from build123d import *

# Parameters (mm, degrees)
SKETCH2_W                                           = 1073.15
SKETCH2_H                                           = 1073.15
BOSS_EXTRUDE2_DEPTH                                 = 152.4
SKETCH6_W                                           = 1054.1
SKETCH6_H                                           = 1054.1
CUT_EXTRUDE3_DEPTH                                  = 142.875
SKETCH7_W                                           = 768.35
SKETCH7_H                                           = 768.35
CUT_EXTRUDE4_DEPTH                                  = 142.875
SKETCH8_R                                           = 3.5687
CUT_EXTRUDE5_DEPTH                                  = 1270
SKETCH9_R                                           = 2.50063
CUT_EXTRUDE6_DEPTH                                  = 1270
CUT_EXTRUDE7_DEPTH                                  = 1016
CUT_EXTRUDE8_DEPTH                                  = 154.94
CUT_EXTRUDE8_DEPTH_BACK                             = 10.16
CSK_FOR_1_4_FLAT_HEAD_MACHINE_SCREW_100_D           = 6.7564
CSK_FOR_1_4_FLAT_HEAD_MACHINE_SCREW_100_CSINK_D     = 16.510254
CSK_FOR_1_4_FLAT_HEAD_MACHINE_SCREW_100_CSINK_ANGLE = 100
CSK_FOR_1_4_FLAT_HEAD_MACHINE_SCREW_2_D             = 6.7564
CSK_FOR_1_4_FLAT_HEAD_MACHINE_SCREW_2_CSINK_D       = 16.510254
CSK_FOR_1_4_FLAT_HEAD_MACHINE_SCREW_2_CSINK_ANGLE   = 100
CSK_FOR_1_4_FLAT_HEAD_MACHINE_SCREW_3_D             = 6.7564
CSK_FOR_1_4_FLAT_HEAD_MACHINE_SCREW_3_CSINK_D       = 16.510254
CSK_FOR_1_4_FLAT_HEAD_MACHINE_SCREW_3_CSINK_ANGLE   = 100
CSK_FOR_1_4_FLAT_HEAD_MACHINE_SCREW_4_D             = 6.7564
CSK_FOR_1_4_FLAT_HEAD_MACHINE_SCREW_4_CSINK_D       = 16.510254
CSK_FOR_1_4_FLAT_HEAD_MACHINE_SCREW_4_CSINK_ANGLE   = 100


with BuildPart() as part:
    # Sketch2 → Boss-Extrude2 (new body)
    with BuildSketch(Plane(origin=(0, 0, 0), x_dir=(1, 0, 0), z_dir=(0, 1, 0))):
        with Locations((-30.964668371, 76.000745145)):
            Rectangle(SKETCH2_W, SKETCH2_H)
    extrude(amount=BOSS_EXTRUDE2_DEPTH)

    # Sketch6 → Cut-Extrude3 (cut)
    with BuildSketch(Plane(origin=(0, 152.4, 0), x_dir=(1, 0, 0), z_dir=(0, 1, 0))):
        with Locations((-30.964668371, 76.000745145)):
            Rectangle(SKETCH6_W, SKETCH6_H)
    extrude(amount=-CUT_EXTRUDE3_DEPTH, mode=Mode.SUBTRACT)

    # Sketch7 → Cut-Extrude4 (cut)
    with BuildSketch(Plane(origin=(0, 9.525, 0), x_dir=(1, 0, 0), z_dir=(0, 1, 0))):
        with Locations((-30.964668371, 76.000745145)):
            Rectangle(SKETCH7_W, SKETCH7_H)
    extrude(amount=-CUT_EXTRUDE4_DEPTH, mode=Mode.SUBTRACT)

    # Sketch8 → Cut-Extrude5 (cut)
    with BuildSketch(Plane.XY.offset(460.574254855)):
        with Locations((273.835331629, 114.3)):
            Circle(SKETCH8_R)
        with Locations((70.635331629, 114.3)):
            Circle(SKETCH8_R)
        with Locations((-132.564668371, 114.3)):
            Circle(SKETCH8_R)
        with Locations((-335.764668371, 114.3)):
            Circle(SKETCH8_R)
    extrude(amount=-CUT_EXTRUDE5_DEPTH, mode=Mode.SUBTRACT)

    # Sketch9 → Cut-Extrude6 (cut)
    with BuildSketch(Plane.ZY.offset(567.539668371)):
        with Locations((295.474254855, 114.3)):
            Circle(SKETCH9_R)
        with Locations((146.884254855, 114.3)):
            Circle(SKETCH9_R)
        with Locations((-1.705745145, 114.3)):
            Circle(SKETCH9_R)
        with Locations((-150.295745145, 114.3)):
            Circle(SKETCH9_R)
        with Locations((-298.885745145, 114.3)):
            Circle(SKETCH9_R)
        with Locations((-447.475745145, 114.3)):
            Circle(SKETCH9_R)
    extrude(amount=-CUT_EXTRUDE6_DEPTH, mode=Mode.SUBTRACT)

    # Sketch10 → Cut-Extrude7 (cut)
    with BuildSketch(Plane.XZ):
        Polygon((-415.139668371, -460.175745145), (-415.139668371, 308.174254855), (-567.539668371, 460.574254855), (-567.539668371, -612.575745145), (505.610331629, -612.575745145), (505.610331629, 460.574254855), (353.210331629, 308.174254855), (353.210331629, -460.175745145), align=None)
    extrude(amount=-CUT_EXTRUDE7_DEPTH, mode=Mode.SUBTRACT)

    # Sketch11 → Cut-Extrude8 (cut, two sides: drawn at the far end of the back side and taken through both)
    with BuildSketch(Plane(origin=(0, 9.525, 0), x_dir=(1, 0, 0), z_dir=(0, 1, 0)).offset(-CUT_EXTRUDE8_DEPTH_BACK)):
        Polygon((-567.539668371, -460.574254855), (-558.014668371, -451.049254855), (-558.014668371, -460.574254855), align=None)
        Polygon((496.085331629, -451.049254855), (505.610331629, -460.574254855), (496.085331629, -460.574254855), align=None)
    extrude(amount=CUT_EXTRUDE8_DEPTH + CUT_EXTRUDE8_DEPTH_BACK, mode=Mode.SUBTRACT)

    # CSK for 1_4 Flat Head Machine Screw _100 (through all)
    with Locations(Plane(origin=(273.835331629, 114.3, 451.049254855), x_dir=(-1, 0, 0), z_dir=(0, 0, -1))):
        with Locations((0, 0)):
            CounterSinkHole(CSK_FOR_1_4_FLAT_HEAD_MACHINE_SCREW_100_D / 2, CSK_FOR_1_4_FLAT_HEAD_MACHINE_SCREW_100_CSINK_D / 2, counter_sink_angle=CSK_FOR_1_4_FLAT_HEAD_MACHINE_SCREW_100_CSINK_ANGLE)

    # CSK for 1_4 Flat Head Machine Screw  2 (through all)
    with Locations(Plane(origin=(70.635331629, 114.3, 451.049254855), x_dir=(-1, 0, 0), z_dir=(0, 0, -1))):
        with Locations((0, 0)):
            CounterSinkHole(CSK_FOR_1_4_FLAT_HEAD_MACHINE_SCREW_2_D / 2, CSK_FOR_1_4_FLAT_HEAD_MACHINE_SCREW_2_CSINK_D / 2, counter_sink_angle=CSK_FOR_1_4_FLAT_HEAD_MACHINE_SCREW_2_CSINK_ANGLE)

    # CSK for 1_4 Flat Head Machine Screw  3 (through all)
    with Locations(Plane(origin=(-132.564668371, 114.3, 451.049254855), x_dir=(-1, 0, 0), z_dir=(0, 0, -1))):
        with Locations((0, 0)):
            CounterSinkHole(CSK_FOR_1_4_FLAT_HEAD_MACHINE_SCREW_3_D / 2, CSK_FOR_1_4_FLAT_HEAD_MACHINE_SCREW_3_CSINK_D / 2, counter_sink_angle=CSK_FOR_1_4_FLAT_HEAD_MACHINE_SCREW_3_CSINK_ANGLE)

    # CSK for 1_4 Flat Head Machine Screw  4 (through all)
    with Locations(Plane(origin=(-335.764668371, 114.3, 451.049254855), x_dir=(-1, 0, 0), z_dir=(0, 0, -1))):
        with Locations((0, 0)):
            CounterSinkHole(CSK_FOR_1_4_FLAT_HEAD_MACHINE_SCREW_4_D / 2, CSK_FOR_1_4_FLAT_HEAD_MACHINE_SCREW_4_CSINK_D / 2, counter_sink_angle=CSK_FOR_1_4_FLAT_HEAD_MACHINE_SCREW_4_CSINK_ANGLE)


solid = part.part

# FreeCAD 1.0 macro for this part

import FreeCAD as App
import Part
import Sketcher
Q = App.Units.Quantity

doc = App.newDocument("Part")
body = doc.addObject("PartDesign::Body", "Body")

# Sketch on XZ plane
sketch1 = doc.addObject("Sketcher::SketchObject", "Sketch")
body.addObject(sketch1)
sketch1.AttachmentSupport = (doc.XZ_Plane, [""])
sketch1.MapMode = "FlatFace"
sketch1.addGeometry(Part.LineSegment(App.Vector(-567.539668, -612.575745, 0), App.Vector(-567.539668, 460.574255, 0)), False)
sketch1.addGeometry(Part.LineSegment(App.Vector(-567.539668, 460.574255, 0), App.Vector(505.610332, 460.574255, 0)), False)
sketch1.addGeometry(Part.LineSegment(App.Vector(505.610332, 460.574255, 0), App.Vector(505.610332, -612.575745, 0)), False)
sketch1.addGeometry(Part.LineSegment(App.Vector(505.610332, -612.575745, 0), App.Vector(-567.539668, -612.575745, 0)), False)
sketch1.addConstraint(Sketcher.Constraint("Coincident", 0, 2, 1, 1))
sketch1.addConstraint(Sketcher.Constraint("Coincident", 1, 2, 2, 1))
sketch1.addConstraint(Sketcher.Constraint("Coincident", 2, 2, 3, 1))
sketch1.addConstraint(Sketcher.Constraint("Coincident", 3, 2, 0, 1))
sketch1.addConstraint(Sketcher.Constraint("Vertical", 0))
sketch1.addConstraint(Sketcher.Constraint("Horizontal", 1))
sketch1.addConstraint(Sketcher.Constraint("Vertical", 2))
sketch1.addConstraint(Sketcher.Constraint("Horizontal", 3))
sketch1.addConstraint(Sketcher.Constraint("Equal", 3, 0))
sketch1.addConstraint(Sketcher.Constraint("DistanceX", 1, 1, 1, 2, Q("42.25 in")))
sketch1.addConstraint(Sketcher.Constraint("DistanceX", 0, 2, -1, 1, Q("567.539668 mm")))
sketch1.addConstraint(Sketcher.Constraint("DistanceY", -1, 1, 0, 2, Q("460.574255 mm")))
pad1 = doc.addObject("PartDesign::Pad", "Pad")
body.addObject(pad1)
pad1.Profile = sketch1
pad1.Length = Q("6 in")
pad1.Reversed = True

# Sketch on XZ plane
sketch2 = doc.addObject("Sketcher::SketchObject", "Sketch001")
body.addObject(sketch2)
sketch2.AttachmentSupport = (doc.XZ_Plane, [""])
sketch2.MapMode = "FlatFace"
sketch2.AttachmentOffset = App.Placement(App.Vector(0, 0, -6 * 25.4), App.Rotation())
sketch2.addGeometry(Part.LineSegment(App.Vector(-558.014668, -603.050745, 0), App.Vector(-558.014668, 451.049255, 0)), False)
sketch2.addGeometry(Part.LineSegment(App.Vector(-558.014668, 451.049255, 0), App.Vector(496.085332, 451.049255, 0)), False)
sketch2.addGeometry(Part.LineSegment(App.Vector(496.085332, 451.049255, 0), App.Vector(496.085332, -603.050745, 0)), False)
sketch2.addGeometry(Part.LineSegment(App.Vector(496.085332, -603.050745, 0), App.Vector(-558.014668, -603.050745, 0)), False)
sketch2.addConstraint(Sketcher.Constraint("Coincident", 0, 2, 1, 1))
sketch2.addConstraint(Sketcher.Constraint("Coincident", 1, 2, 2, 1))
sketch2.addConstraint(Sketcher.Constraint("Coincident", 2, 2, 3, 1))
sketch2.addConstraint(Sketcher.Constraint("Coincident", 3, 2, 0, 1))
sketch2.addConstraint(Sketcher.Constraint("Vertical", 0))
sketch2.addConstraint(Sketcher.Constraint("Horizontal", 1))
sketch2.addConstraint(Sketcher.Constraint("Vertical", 2))
sketch2.addConstraint(Sketcher.Constraint("Horizontal", 3))
sketch2.addConstraint(Sketcher.Constraint("Equal", 3, 0))
sketch2.addConstraint(Sketcher.Constraint("DistanceX", 1, 1, 1, 2, Q("41.5 in")))
sketch2.addConstraint(Sketcher.Constraint("DistanceX", 0, 2, -1, 1, Q("558.014668 mm")))
sketch2.addConstraint(Sketcher.Constraint("DistanceY", -1, 1, 0, 2, Q("451.049255 mm")))
pocket1 = doc.addObject("PartDesign::Pocket", "Pocket")
body.addObject(pocket1)
pocket1.Profile = sketch2
pocket1.Length = Q("5.625 in")
pocket1.Reversed = True

# Sketch on XZ plane
sketch3 = doc.addObject("Sketcher::SketchObject", "Sketch002")
body.addObject(sketch3)
sketch3.AttachmentSupport = (doc.XZ_Plane, [""])
sketch3.MapMode = "FlatFace"
sketch3.AttachmentOffset = App.Placement(App.Vector(0, 0, -0.375 * 25.4), App.Rotation())
sketch3.addGeometry(Part.LineSegment(App.Vector(-415.139668, -460.175745, 0), App.Vector(-415.139668, 308.174255, 0)), False)
sketch3.addGeometry(Part.LineSegment(App.Vector(-415.139668, 308.174255, 0), App.Vector(353.210332, 308.174255, 0)), False)
sketch3.addGeometry(Part.LineSegment(App.Vector(353.210332, 308.174255, 0), App.Vector(353.210332, -460.175745, 0)), False)
sketch3.addGeometry(Part.LineSegment(App.Vector(353.210332, -460.175745, 0), App.Vector(-415.139668, -460.175745, 0)), False)
sketch3.addConstraint(Sketcher.Constraint("Coincident", 0, 2, 1, 1))
sketch3.addConstraint(Sketcher.Constraint("Coincident", 1, 2, 2, 1))
sketch3.addConstraint(Sketcher.Constraint("Coincident", 2, 2, 3, 1))
sketch3.addConstraint(Sketcher.Constraint("Coincident", 3, 2, 0, 1))
sketch3.addConstraint(Sketcher.Constraint("Vertical", 0))
sketch3.addConstraint(Sketcher.Constraint("Horizontal", 1))
sketch3.addConstraint(Sketcher.Constraint("Vertical", 2))
sketch3.addConstraint(Sketcher.Constraint("Horizontal", 3))
sketch3.addConstraint(Sketcher.Constraint("Equal", 3, 0))
sketch3.addConstraint(Sketcher.Constraint("DistanceX", 1, 1, 1, 2, Q("30.25 in")))
sketch3.addConstraint(Sketcher.Constraint("DistanceX", 0, 2, -1, 1, Q("415.139668 mm")))
sketch3.addConstraint(Sketcher.Constraint("DistanceY", -1, 1, 0, 2, Q("308.174255 mm")))
pocket2 = doc.addObject("PartDesign::Pocket", "Pocket001")
body.addObject(pocket2)
pocket2.Profile = sketch3
pocket2.Length = Q("5.625 in")
pocket2.Reversed = True

# Sketch on XY plane
sketch4 = doc.addObject("Sketcher::SketchObject", "Sketch003")
body.addObject(sketch4)
sketch4.AttachmentSupport = (doc.XY_Plane, [""])
sketch4.MapMode = "FlatFace"
sketch4.AttachmentOffset = App.Placement(App.Vector(0, 0, 460.574255), App.Rotation())
sketch4.addGeometry(Part.Circle(App.Vector(273.835332, 114.3, 0), App.Vector(0, 0, 1), 3.5687), False)
sketch4.addGeometry(Part.Circle(App.Vector(70.635332, 114.3, 0), App.Vector(0, 0, 1), 3.5687), False)
sketch4.addGeometry(Part.Circle(App.Vector(-132.564668, 114.3, 0), App.Vector(0, 0, 1), 3.5687), False)
sketch4.addGeometry(Part.Circle(App.Vector(-335.764668, 114.3, 0), App.Vector(0, 0, 1), 3.5687), False)
sketch4.addConstraint(Sketcher.Constraint("Equal", 0, 1))
sketch4.addConstraint(Sketcher.Constraint("Equal", 1, 2))
sketch4.addConstraint(Sketcher.Constraint("Equal", 2, 3))
sketch4.addConstraint(Sketcher.Constraint("Horizontal", 0, 3, 1, 3))
sketch4.addConstraint(Sketcher.Constraint("Horizontal", 1, 3, 2, 3))
sketch4.addConstraint(Sketcher.Constraint("Horizontal", 2, 3, 3, 3))
sketch4.addConstraint(Sketcher.Constraint("Diameter", 0, Q("0.281 in")))
sketch4.addConstraint(Sketcher.Constraint("DistanceX", 1, 3, 0, 3, Q("8 in")))
sketch4.addConstraint(Sketcher.Constraint("DistanceX", 2, 3, 1, 3, Q("8 in")))
sketch4.addConstraint(Sketcher.Constraint("DistanceX", 3, 3, 2, 3, Q("8 in")))
sketch4.addConstraint(Sketcher.Constraint("DistanceY", -1, 1, 0, 3, Q("4.5 in")))
sketch4.addConstraint(Sketcher.Constraint("DistanceX", -1, 1, 0, 3, Q("273.835332 mm")))
pocket3 = doc.addObject("PartDesign::Pocket", "Pocket002")
body.addObject(pocket3)
pocket3.Profile = sketch4
pocket3.Length = Q("50 in")

# Sketch on YZ plane
sketch5 = doc.addObject("Sketcher::SketchObject", "Sketch004")
body.addObject(sketch5)
sketch5.AttachmentSupport = (doc.YZ_Plane, [""])
sketch5.MapMode = "FlatFace"
sketch5.AttachmentOffset = App.Placement(App.Vector(0, 0, -567.539668), App.Rotation())
sketch5.addGeometry(Part.Circle(App.Vector(114.3, 295.474255, 0), App.Vector(0, 0, 1), 2.50063), False)
sketch5.addGeometry(Part.Circle(App.Vector(114.3, 146.884255, 0), App.Vector(0, 0, 1), 2.50063), False)
sketch5.addGeometry(Part.Circle(App.Vector(114.3, -1.705745, 0), App.Vector(0, 0, 1), 2.50063), False)
sketch5.addGeometry(Part.Circle(App.Vector(114.3, -150.295745, 0), App.Vector(0, 0, 1), 2.50063), False)
sketch5.addGeometry(Part.Circle(App.Vector(114.3, -298.885745, 0), App.Vector(0, 0, 1), 2.50063), False)
sketch5.addGeometry(Part.Circle(App.Vector(114.3, -447.475745, 0), App.Vector(0, 0, 1), 2.50063), False)
sketch5.addConstraint(Sketcher.Constraint("Equal", 0, 1))
sketch5.addConstraint(Sketcher.Constraint("Equal", 1, 2))
sketch5.addConstraint(Sketcher.Constraint("Equal", 2, 3))
sketch5.addConstraint(Sketcher.Constraint("Equal", 3, 4))
sketch5.addConstraint(Sketcher.Constraint("Equal", 4, 5))
sketch5.addConstraint(Sketcher.Constraint("Vertical", 0, 3, 1, 3))
sketch5.addConstraint(Sketcher.Constraint("Vertical", 1, 3, 2, 3))
sketch5.addConstraint(Sketcher.Constraint("Vertical", 2, 3, 3, 3))
sketch5.addConstraint(Sketcher.Constraint("Vertical", 3, 3, 4, 3))
sketch5.addConstraint(Sketcher.Constraint("Vertical", 4, 3, 5, 3))
sketch5.addConstraint(Sketcher.Constraint("Diameter", 0, Q("0.1969 in")))
sketch5.addConstraint(Sketcher.Constraint("DistanceX", -1, 1, 0, 3, Q("4.5 in")))
sketch5.addConstraint(Sketcher.Constraint("DistanceY", 2, 3, 0, 3, Q("11.7 in")))
sketch5.addConstraint(Sketcher.Constraint("DistanceY", 3, 3, 1, 3, Q("11.7 in")))
sketch5.addConstraint(Sketcher.Constraint("DistanceY", 4, 3, 2, 3, Q("11.7 in")))
sketch5.addConstraint(Sketcher.Constraint("DistanceY", 5, 3, 3, 3, Q("11.7 in")))
sketch5.addConstraint(Sketcher.Constraint("DistanceY", 1, 3, 0, 3, Q("5.85 in")))
sketch5.addConstraint(Sketcher.Constraint("DistanceY", -1, 1, 0, 3, Q("295.474255 mm")))
pocket4 = doc.addObject("PartDesign::Pocket", "Pocket003")
body.addObject(pocket4)
pocket4.Profile = sketch5
pocket4.Length = Q("50 in")
pocket4.Reversed = True

# Sketch on XZ plane
sketch6 = doc.addObject("Sketcher::SketchObject", "Sketch005")
body.addObject(sketch6)
sketch6.AttachmentSupport = (doc.XZ_Plane, [""])
sketch6.MapMode = "FlatFace"
sketch6.addGeometry(Part.LineSegment(App.Vector(-415.139668, -460.175745, 0), App.Vector(-415.139668, 308.174255, 0)), False)
sketch6.addGeometry(Part.LineSegment(App.Vector(-415.139668, 308.174255, 0), App.Vector(-567.539668, 460.574255, 0)), False)
sketch6.addGeometry(Part.LineSegment(App.Vector(-567.539668, 460.574255, 0), App.Vector(-567.539668, -612.575745, 0)), False)
sketch6.addGeometry(Part.LineSegment(App.Vector(-567.539668, -612.575745, 0), App.Vector(505.610332, -612.575745, 0)), False)
sketch6.addGeometry(Part.LineSegment(App.Vector(505.610332, -612.575745, 0), App.Vector(505.610332, 460.574255, 0)), False)
sketch6.addGeometry(Part.LineSegment(App.Vector(505.610332, 460.574255, 0), App.Vector(353.210332, 308.174255, 0)), False)
sketch6.addGeometry(Part.LineSegment(App.Vector(353.210332, 308.174255, 0), App.Vector(353.210332, -460.175745, 0)), False)
sketch6.addGeometry(Part.LineSegment(App.Vector(353.210332, -460.175745, 0), App.Vector(-415.139668, -460.175745, 0)), False)
sketch6.addConstraint(Sketcher.Constraint("Coincident", 0, 2, 1, 1))
sketch6.addConstraint(Sketcher.Constraint("Coincident", 1, 2, 2, 1))
sketch6.addConstraint(Sketcher.Constraint("Coincident", 2, 2, 3, 1))
sketch6.addConstraint(Sketcher.Constraint("Coincident", 3, 2, 4, 1))
sketch6.addConstraint(Sketcher.Constraint("Coincident", 4, 2, 5, 1))
sketch6.addConstraint(Sketcher.Constraint("Coincident", 5, 2, 6, 1))
sketch6.addConstraint(Sketcher.Constraint("Coincident", 6, 2, 7, 1))
sketch6.addConstraint(Sketcher.Constraint("Coincident", 7, 2, 0, 1))
sketch6.addConstraint(Sketcher.Constraint("Vertical", 0))
sketch6.addConstraint(Sketcher.Constraint("Vertical", 2))
sketch6.addConstraint(Sketcher.Constraint("Horizontal", 3))
sketch6.addConstraint(Sketcher.Constraint("Vertical", 4))
sketch6.addConstraint(Sketcher.Constraint("Vertical", 6))
sketch6.addConstraint(Sketcher.Constraint("Horizontal", 7))
sketch6.addConstraint(Sketcher.Constraint("Perpendicular", 1, 5))
sketch6.addConstraint(Sketcher.Constraint("Horizontal", 1, 2, 4, 2))
sketch6.addConstraint(Sketcher.Constraint("Horizontal", 0, 2, 5, 2))
sketch6.addConstraint(Sketcher.Constraint("Equal", 7, 0))
sketch6.addConstraint(Sketcher.Constraint("Equal", 3, 2))
sketch6.addConstraint(Sketcher.Constraint("Equal", 1, 5))
sketch6.addConstraint(Sketcher.Constraint("DistanceX", 1, 2, 0, 2, Q("6 in")))
sketch6.addConstraint(Sketcher.Constraint("DistanceX", 3, 1, 3, 2, Q("42.25 in")))
sketch6.addConstraint(Sketcher.Constraint("DistanceX", 0, 2, -1, 1, Q("415.139668 mm")))
sketch6.addConstraint(Sketcher.Constraint("DistanceY", -1, 1, 0, 2, Q("308.174255 mm")))
pocket5 = doc.addObject("PartDesign::Pocket", "Pocket004")
body.addObject(pocket5)
pocket5.Profile = sketch6
pocket5.Length = Q("40 in")

# Sketch on XZ plane
sketch7 = doc.addObject("Sketcher::SketchObject", "Sketch006")
body.addObject(sketch7)
sketch7.AttachmentSupport = (doc.XZ_Plane, [""])
sketch7.MapMode = "FlatFace"
sketch7.AttachmentOffset = App.Placement(App.Vector(0, 0, -0.375 * 25.4), App.Rotation())
sketch7.addGeometry(Part.LineSegment(App.Vector(-558.014668, 451.049255, 0), App.Vector(-567.539668, 460.574255, 0)), False)
sketch7.addGeometry(Part.LineSegment(App.Vector(-567.539668, 460.574255, 0), App.Vector(-558.014668, 460.574255, 0)), False)
sketch7.addGeometry(Part.LineSegment(App.Vector(-558.014668, 460.574255, 0), App.Vector(-558.014668, 451.049255, 0)), False)
sketch7.addGeometry(Part.LineSegment(App.Vector(505.610332, 460.574255, 0), App.Vector(496.085332, 451.049255, 0)), False)
sketch7.addGeometry(Part.LineSegment(App.Vector(496.085332, 451.049255, 0), App.Vector(496.085332, 460.574255, 0)), False)
sketch7.addGeometry(Part.LineSegment(App.Vector(496.085332, 460.574255, 0), App.Vector(505.610332, 460.574255, 0)), False)
sketch7.addConstraint(Sketcher.Constraint("Coincident", 0, 2, 1, 1))
sketch7.addConstraint(Sketcher.Constraint("Coincident", 1, 2, 2, 1))
sketch7.addConstraint(Sketcher.Constraint("Coincident", 2, 2, 0, 1))
sketch7.addConstraint(Sketcher.Constraint("Coincident", 3, 2, 4, 1))
sketch7.addConstraint(Sketcher.Constraint("Coincident", 4, 2, 5, 1))
sketch7.addConstraint(Sketcher.Constraint("Coincident", 5, 2, 3, 1))
sketch7.addConstraint(Sketcher.Constraint("Horizontal", 1))
sketch7.addConstraint(Sketcher.Constraint("Vertical", 2))
sketch7.addConstraint(Sketcher.Constraint("Vertical", 4))
sketch7.addConstraint(Sketcher.Constraint("Horizontal", 5))
sketch7.addConstraint(Sketcher.Constraint("Perpendicular", 0, 3))
sketch7.addConstraint(Sketcher.Constraint("Horizontal", 2, 2, 3, 2))
sketch7.addConstraint(Sketcher.Constraint("Horizontal", 1, 2, 4, 2))
sketch7.addConstraint(Sketcher.Constraint("Equal", 1, 5))
sketch7.addConstraint(Sketcher.Constraint("DistanceX", 2, 2, 3, 2, Q("41.5 in")))
sketch7.addConstraint(Sketcher.Constraint("DistanceX", 1, 1, 1, 2, Q("0.375 in")))
sketch7.addConstraint(Sketcher.Constraint("DistanceX", 0, 2, -1, 1, Q("567.539668 mm")))
sketch7.addConstraint(Sketcher.Constraint("DistanceY", -1, 1, 0, 2, Q("460.574255 mm")))
pocket6 = doc.addObject("PartDesign::Pocket", "Pocket005")
body.addObject(pocket6)
pocket6.Profile = sketch7
pocket6.Type = "ThroughAll"
pocket6.Midplane = True

# Sketch on XY plane
sketch8 = doc.addObject("Sketcher::SketchObject", "Sketch007")
body.addObject(sketch8)
sketch8.AttachmentSupport = (doc.XY_Plane, [""])
sketch8.MapMode = "FlatFace"
sketch8.AttachmentOffset = App.Placement(App.Vector(0, 0, 451.049255), App.Rotation())
sketch8.addGeometry(Part.Circle(App.Vector(273.835332, 114.3, 0), App.Vector(0, 0, 1), 3.3782), False)
sketch8.addConstraint(Sketcher.Constraint("Diameter", 0, Q("0.266 in")))
sketch8.addConstraint(Sketcher.Constraint("DistanceY", -1, 1, 0, 3, Q("4.5 in")))
sketch8.addConstraint(Sketcher.Constraint("DistanceX", -1, 1, 0, 3, Q("273.835332 mm")))
doc.recompute()
hole = doc.addObject("PartDesign::Hole", "Hole")
body.addObject(hole)
hole.Profile = sketch8
hole.ThreadType = "None"
hole.Diameter = Q("0.266 in")
hole.DepthType = "ThroughAll"
hole.HoleCutType = "Countersink"
hole.HoleCutDiameter = 16.510254
hole.HoleCutCountersinkAngle = 100
hole.Reversed = True

# Sketch on XY plane
sketch9 = doc.addObject("Sketcher::SketchObject", "Sketch008")
body.addObject(sketch9)
sketch9.AttachmentSupport = (doc.XY_Plane, [""])
sketch9.MapMode = "FlatFace"
sketch9.AttachmentOffset = App.Placement(App.Vector(0, 0, 451.049255), App.Rotation())
sketch9.addGeometry(Part.Circle(App.Vector(70.635332, 114.3, 0), App.Vector(0, 0, 1), 3.3782), False)
sketch9.addConstraint(Sketcher.Constraint("Diameter", 0, Q("0.266 in")))
sketch9.addConstraint(Sketcher.Constraint("DistanceY", -1, 1, 0, 3, Q("4.5 in")))
sketch9.addConstraint(Sketcher.Constraint("DistanceX", -1, 1, 0, 3, Q("70.635332 mm")))
doc.recompute()
hole2 = doc.addObject("PartDesign::Hole", "Hole001")
body.addObject(hole2)
hole2.Profile = sketch9
hole2.ThreadType = "None"
hole2.Diameter = Q("0.266 in")
hole2.DepthType = "ThroughAll"
hole2.HoleCutType = "Countersink"
hole2.HoleCutDiameter = 16.510254
hole2.HoleCutCountersinkAngle = 100
hole2.Reversed = True

# Sketch on XY plane
sketch10 = doc.addObject("Sketcher::SketchObject", "Sketch009")
body.addObject(sketch10)
sketch10.AttachmentSupport = (doc.XY_Plane, [""])
sketch10.MapMode = "FlatFace"
sketch10.AttachmentOffset = App.Placement(App.Vector(0, 0, 451.049255), App.Rotation())
sketch10.addGeometry(Part.Circle(App.Vector(-132.564668, 114.3, 0), App.Vector(0, 0, 1), 3.3782), False)
sketch10.addConstraint(Sketcher.Constraint("Diameter", 0, Q("0.266 in")))
sketch10.addConstraint(Sketcher.Constraint("DistanceY", -1, 1, 0, 3, Q("4.5 in")))
sketch10.addConstraint(Sketcher.Constraint("DistanceX", 0, 3, -1, 1, Q("132.564668 mm")))
doc.recompute()
hole3 = doc.addObject("PartDesign::Hole", "Hole002")
body.addObject(hole3)
hole3.Profile = sketch10
hole3.ThreadType = "None"
hole3.Diameter = Q("0.266 in")
hole3.DepthType = "ThroughAll"
hole3.HoleCutType = "Countersink"
hole3.HoleCutDiameter = 16.510254
hole3.HoleCutCountersinkAngle = 100
hole3.Reversed = True

# Sketch on XY plane
sketch11 = doc.addObject("Sketcher::SketchObject", "Sketch010")
body.addObject(sketch11)
sketch11.AttachmentSupport = (doc.XY_Plane, [""])
sketch11.MapMode = "FlatFace"
sketch11.AttachmentOffset = App.Placement(App.Vector(0, 0, 451.049255), App.Rotation())
sketch11.addGeometry(Part.Circle(App.Vector(-335.764668, 114.3, 0), App.Vector(0, 0, 1), 3.3782), False)
sketch11.addConstraint(Sketcher.Constraint("Diameter", 0, Q("0.266 in")))
sketch11.addConstraint(Sketcher.Constraint("DistanceY", -1, 1, 0, 3, Q("4.5 in")))
sketch11.addConstraint(Sketcher.Constraint("DistanceX", 0, 3, -1, 1, Q("335.764668 mm")))
doc.recompute()
hole4 = doc.addObject("PartDesign::Hole", "Hole003")
body.addObject(hole4)
hole4.Profile = sketch11
hole4.ThreadType = "None"
hole4.Diameter = Q("0.266 in")
hole4.DepthType = "ThroughAll"
hole4.HoleCutType = "Countersink"
hole4.HoleCutDiameter = 16.510254
hole4.HoleCutCountersinkAngle = 100
hole4.Reversed = True

doc.recompute()
